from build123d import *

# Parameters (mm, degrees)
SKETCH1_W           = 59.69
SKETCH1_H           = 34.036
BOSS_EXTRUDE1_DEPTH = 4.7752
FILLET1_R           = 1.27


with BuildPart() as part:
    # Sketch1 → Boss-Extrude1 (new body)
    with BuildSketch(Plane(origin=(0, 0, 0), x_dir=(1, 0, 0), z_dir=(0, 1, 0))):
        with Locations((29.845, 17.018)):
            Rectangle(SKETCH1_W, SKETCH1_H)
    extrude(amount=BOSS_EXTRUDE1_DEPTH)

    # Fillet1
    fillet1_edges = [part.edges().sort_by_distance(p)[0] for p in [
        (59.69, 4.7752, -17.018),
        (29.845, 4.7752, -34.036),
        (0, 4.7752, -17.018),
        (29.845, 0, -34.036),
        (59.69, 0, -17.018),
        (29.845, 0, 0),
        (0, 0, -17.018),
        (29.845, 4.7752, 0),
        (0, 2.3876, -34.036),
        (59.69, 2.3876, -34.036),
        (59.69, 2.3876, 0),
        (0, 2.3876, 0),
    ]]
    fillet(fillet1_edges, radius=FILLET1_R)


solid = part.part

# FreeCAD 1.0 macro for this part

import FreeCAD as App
import Part
import Sketcher
Q = App.Units.Quantity


def add_polygon(sketch, points):
    """Adds a closed chain of lines whose ends are joined by coincident constraints."""
    first, n = sketch.GeometryCount, len(points)
    for a, b in zip(points, points[1:] + points[:1]):
        sketch.addGeometry(Part.LineSegment(App.Vector(*a, 0), App.Vector(*b, 0)), False)
    for i in range(n):
        sketch.addConstraint(Sketcher.Constraint("Coincident", first + i, 2, first + (i + 1) % n, 1))

doc = App.newDocument("Part")
body = doc.addObject("PartDesign::Body", "Body")

# Sketch on XZ plane
sketch1 = body.newObject("Sketcher::SketchObject", "Sketch")
sketch1.AttachmentSupport = (doc.getObject("XZ_Plane"), [""])
sketch1.MapMode = "FlatFace"
add_polygon(sketch1, [(0, -34.036), (0, 0), (59.69, 0), (59.69, -34.036)])  # lines 0-3
sketch1.addConstraint([
    Sketcher.Constraint("Vertical", 0),
    Sketcher.Constraint("Horizontal", 1),
    Sketcher.Constraint("Vertical", 2),
    Sketcher.Constraint("Horizontal", 3),
    Sketcher.Constraint("Coincident", 0, 2, -1, 1),
    Sketcher.Constraint("DistanceX", 1, 1, 1, 2, Q("2.35 in")),
    Sketcher.Constraint("DistanceY", 0, 1, 0, 2, Q("1.34 in")),
])
pad1 = body.newObject("PartDesign::Pad", "Pad")
pad1.Profile = sketch1
pad1.Length = Q("0.188 in")
pad1.Reversed = True
doc.recompute()

fillet = body.newObject("PartDesign::Fillet", "Fillet")
fillet.Base = (pad1, ["Edge1"])
fillet.UseAllEdges = True
fillet.Radius = Q("0.05 in")

doc.recompute()
